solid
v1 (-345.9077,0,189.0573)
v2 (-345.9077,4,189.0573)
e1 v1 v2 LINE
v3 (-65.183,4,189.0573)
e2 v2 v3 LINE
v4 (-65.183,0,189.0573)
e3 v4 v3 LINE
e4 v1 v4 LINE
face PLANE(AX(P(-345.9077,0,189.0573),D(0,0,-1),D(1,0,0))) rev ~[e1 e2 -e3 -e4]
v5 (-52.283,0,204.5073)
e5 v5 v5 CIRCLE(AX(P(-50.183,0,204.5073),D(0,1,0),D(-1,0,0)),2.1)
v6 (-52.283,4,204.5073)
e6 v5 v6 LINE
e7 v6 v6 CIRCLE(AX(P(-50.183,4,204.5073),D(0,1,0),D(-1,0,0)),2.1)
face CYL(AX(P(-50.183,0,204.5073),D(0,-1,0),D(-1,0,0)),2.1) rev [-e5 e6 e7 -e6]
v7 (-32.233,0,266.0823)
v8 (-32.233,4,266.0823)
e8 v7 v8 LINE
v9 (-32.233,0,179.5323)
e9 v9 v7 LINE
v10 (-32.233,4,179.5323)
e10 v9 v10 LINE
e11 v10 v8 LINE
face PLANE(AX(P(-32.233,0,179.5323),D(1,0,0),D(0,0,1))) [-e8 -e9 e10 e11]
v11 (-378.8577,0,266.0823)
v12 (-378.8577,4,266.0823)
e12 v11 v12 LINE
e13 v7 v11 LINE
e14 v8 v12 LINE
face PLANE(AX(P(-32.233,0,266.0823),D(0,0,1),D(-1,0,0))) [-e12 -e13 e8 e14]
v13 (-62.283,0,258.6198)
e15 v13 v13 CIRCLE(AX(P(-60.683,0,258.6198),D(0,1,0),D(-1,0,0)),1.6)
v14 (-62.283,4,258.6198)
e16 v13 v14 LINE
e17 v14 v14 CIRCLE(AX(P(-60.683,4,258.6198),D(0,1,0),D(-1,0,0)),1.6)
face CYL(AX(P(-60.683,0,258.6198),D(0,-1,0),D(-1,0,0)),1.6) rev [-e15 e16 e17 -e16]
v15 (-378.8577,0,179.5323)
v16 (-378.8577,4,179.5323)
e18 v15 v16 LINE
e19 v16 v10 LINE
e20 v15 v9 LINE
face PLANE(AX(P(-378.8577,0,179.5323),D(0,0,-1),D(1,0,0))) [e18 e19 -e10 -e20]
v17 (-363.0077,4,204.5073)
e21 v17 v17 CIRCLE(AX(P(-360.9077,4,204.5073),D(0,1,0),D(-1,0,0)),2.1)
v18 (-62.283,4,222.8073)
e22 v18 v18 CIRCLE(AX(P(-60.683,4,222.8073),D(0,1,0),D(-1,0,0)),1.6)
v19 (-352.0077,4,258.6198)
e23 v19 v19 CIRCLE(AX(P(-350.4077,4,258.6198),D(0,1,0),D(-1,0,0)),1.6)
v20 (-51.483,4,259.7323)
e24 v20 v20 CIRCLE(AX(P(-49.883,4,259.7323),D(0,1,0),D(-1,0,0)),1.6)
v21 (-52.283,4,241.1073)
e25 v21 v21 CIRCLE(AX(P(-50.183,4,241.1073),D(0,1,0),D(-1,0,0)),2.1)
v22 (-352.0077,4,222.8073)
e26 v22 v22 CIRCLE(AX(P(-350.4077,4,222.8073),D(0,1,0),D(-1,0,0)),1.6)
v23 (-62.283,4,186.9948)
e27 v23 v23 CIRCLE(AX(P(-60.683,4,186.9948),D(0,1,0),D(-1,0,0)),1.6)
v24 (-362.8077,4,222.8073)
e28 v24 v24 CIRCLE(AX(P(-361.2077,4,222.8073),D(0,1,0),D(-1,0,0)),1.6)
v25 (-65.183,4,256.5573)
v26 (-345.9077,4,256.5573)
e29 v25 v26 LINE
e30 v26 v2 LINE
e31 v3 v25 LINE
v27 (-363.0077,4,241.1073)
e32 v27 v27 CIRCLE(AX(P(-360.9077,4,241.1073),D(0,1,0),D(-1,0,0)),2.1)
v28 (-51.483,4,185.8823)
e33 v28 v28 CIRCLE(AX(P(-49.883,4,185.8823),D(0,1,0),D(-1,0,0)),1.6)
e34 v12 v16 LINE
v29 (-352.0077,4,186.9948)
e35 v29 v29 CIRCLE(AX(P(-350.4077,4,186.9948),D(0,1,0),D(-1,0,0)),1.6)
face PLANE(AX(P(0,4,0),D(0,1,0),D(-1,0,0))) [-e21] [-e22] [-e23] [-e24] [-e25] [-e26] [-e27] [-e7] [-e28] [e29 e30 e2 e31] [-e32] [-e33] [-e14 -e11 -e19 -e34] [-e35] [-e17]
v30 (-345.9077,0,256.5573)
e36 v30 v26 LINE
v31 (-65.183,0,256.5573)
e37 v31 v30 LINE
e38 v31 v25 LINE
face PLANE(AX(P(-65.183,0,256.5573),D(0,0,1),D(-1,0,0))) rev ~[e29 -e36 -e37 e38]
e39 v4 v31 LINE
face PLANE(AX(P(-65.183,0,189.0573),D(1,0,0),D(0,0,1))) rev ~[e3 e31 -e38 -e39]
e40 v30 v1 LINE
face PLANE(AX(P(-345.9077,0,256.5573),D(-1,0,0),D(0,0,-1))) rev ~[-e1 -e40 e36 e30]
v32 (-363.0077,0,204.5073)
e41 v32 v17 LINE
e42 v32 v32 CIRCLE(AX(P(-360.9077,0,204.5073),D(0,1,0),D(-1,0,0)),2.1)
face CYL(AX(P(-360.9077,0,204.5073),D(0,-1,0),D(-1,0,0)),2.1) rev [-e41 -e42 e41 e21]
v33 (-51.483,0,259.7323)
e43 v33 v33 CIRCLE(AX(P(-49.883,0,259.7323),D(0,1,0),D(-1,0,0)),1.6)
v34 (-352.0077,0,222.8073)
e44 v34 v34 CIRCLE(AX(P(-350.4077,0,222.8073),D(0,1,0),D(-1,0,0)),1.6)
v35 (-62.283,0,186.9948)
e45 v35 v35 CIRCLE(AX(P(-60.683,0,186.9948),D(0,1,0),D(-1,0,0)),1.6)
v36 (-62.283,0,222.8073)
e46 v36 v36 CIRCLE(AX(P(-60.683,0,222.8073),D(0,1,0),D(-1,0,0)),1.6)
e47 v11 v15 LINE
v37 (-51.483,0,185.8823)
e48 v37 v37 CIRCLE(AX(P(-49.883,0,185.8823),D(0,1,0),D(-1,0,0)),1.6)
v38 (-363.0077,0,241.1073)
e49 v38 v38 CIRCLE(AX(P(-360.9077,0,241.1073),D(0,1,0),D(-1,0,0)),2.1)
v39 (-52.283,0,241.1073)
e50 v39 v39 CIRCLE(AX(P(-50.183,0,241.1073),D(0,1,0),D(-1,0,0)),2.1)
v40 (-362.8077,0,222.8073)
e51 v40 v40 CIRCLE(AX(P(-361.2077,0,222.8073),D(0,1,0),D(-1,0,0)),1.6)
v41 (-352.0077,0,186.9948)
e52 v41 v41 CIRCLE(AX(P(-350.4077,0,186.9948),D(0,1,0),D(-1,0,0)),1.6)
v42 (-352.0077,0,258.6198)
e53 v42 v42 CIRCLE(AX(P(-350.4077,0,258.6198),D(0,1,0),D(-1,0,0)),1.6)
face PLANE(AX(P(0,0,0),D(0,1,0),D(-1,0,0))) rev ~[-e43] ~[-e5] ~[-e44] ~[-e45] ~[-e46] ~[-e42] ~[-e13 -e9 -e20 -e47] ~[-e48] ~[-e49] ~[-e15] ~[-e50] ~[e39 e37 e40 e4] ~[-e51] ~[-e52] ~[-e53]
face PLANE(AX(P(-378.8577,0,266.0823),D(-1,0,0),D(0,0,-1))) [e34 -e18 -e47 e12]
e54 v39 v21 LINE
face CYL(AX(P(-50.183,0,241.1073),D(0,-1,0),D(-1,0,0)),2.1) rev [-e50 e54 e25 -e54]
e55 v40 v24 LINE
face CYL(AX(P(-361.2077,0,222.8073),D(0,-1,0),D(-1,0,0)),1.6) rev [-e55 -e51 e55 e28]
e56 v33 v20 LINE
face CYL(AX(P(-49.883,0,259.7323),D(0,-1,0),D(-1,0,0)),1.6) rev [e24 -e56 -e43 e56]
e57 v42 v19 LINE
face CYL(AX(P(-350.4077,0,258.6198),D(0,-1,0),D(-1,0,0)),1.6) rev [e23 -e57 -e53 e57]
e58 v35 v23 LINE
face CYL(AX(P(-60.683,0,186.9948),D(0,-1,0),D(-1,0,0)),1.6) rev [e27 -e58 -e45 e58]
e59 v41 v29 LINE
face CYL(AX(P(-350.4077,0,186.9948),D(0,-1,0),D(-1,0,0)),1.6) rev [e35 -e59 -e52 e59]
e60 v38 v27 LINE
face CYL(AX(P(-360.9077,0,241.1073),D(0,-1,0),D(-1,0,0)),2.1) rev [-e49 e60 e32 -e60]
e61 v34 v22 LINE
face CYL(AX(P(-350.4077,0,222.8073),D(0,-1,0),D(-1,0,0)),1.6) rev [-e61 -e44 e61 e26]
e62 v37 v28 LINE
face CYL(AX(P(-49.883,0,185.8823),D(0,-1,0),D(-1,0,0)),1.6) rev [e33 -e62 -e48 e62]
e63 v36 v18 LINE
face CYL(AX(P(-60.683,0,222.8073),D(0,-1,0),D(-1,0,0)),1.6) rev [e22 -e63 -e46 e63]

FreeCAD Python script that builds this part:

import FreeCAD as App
import Part
import Sketcher

V = App.Vector
Q = App.Units.Quantity

doc = App.newDocument("Part")
body = doc.addObject("PartDesign::Body", "Body")

# Sketch on XZ plane
sketch1 = body.newObject("Sketcher::SketchObject", "Sketch")
sketch1.AttachmentSupport = (doc.getObject("XZ_Plane"), [""])
sketch1.MapMode = "FlatFace"
sketch1.addGeometry([
    Part.LineSegment(V(-32.2, 179.5, 0), V(-378.9, 179.5, 0)),  # 0
    Part.LineSegment(V(-378.9, 179.5, 0), V(-378.9, 266.1, 0)),  # 1
    Part.LineSegment(V(-378.9, 266.1, 0), V(-32.2, 266.1, 0)),  # 2
    Part.LineSegment(V(-32.2, 266.1, 0), V(-32.2, 179.5, 0)),  # 3
    Part.Circle(V(-49.9, 185.9, 0), V(0, 0, 1), 1.6),  # 4
    Part.Circle(V(-60.7, 187, 0), V(0, 0, 1), 1.6),  # 5
    Part.Circle(V(-50.2, 204.5, 0), V(0, 0, 1), 2.1),  # 6
    Part.Circle(V(-350.4, 187, 0), V(0, 0, 1), 1.6),  # 7
    Part.Circle(V(-360.9, 204.5, 0), V(0, 0, 1), 2.1),  # 8
    Part.Circle(V(-60.7, 222.8, 0), V(0, 0, 1), 1.6),  # 9
    Part.Circle(V(-50.2, 241.1, 0), V(0, 0, 1), 2.1),  # 10
    Part.Circle(V(-49.9, 259.7, 0), V(0, 0, 1), 1.6),  # 11
    Part.Circle(V(-60.7, 258.6, 0), V(0, 0, 1), 1.6),  # 12
    Part.LineSegment(V(-65.2, 256.6, 0), V(-345.9, 256.6, 0)),  # 13
    Part.LineSegment(V(-345.9, 256.6, 0), V(-345.9, 189.1, 0)),  # 14
    Part.LineSegment(V(-345.9, 189.1, 0), V(-65.2, 189.1, 0)),  # 15
    Part.LineSegment(V(-65.2, 189.1, 0), V(-65.2, 256.6, 0)),  # 16
    Part.Circle(V(-350.4, 222.8, 0), V(0, 0, 1), 1.6),  # 17
    Part.Circle(V(-361.2, 222.8, 0), V(0, 0, 1), 1.6),  # 18
    Part.Circle(V(-360.9, 241.1, 0), V(0, 0, 1), 2.1),  # 19
    Part.Circle(V(-350.4, 258.6, 0), V(0, 0, 1), 1.6),  # 20
], False)
sketch1.addConstraint([
    Sketcher.Constraint("Coincident", 0, 2, 1, 1),
    Sketcher.Constraint("Coincident", 1, 2, 2, 1),
    Sketcher.Constraint("Coincident", 2, 2, 3, 1),
    Sketcher.Constraint("Coincident", 3, 2, 0, 1),
    Sketcher.Constraint("Coincident", 13, 2, 14, 1),
    Sketcher.Constraint("Coincident", 14, 2, 15, 1),
    Sketcher.Constraint("Coincident", 15, 2, 16, 1),
    Sketcher.Constraint("Coincident", 16, 2, 13, 1),
    Sketcher.Constraint("Horizontal", 0),
    Sketcher.Constraint("Vertical", 1),
    Sketcher.Constraint("Horizontal", 2),
    Sketcher.Constraint("Vertical", 3),
    Sketcher.Constraint("Horizontal", 13),
    Sketcher.Constraint("Vertical", 14),
    Sketcher.Constraint("Horizontal", 15),
    Sketcher.Constraint("Vertical", 16),
    Sketcher.Constraint("Equal", 4, 5),
    Sketcher.Constraint("Equal", 5, 7),
    Sketcher.Constraint("Equal", 6, 8),
    Sketcher.Constraint("Equal", 7, 9),
    Sketcher.Constraint("Equal", 8, 10),
    Sketcher.Constraint("Equal", 9, 11),
    Sketcher.Constraint("Equal", 11, 12),
    Sketcher.Constraint("Equal", 12, 17),
    Sketcher.Constraint("Equal", 17, 18),
    Sketcher.Constraint("Equal", 10, 19),
    Sketcher.Constraint("Equal", 18, 20),
    Sketcher.Constraint("Horizontal", 5, 3, 7, 3),
    Sketcher.Constraint("Horizontal", 6, 3, 8, 3),
    Sketcher.Constraint("Horizontal", 9, 3, 17, 3),
    Sketcher.Constraint("Horizontal", 17, 3, 18, 3),
    Sketcher.Constraint("Horizontal", 10, 3, 19, 3),
    Sketcher.Constraint("Horizontal", 12, 3, 20, 3),
    Sketcher.Constraint("Vertical", 5, 3, 9, 3),
    Sketcher.Constraint("Vertical", 6, 3, 10, 3),
    Sketcher.Constraint("Vertical", 4, 3, 11, 3),
    Sketcher.Constraint("Vertical", 9, 3, 12, 3),
    Sketcher.Constraint("Vertical", 7, 3, 17, 3),
    Sketcher.Constraint("Vertical", 8, 3, 19, 3),
    Sketcher.Constraint("Vertical", 17, 3, 20, 3),
    Sketcher.Constraint("Diameter", 4, Q("3.2 mm")),
    Sketcher.Constraint("Diameter", 6, Q("4.2 mm")),
    Sketcher.Constraint("DistanceY", 14, 2, 14, 1, Q("67.5 mm")),
    Sketcher.Constraint("DistanceX", 19, 3, 13, 2, Q("15 mm")),
    Sketcher.Constraint("DistanceX", 15, 2, 6, 3, Q("15 mm")),
    Sketcher.Constraint("DistanceY", 1, 1, 1, 2, Q("86.55 mm")),
    Sketcher.Constraint("DistanceX", 5, 3, 4, 3, Q("10.8 mm")),
    Sketcher.Constraint("DistanceX", 6, 3, 4, 3, Q("0.3 mm")),
    Sketcher.Constraint("DistanceX", 8, 3, 7, 3, Q("10.5 mm")),
    Sketcher.Constraint("DistanceY", 6, 3, 9, 3, Q("18.3 mm")),
    Sketcher.Constraint("DistanceY", 9, 3, 10, 3, Q("18.3 mm")),
    Sketcher.Constraint("DistanceX", 18, 3, 17, 3, Q("10.8 mm")),
    Sketcher.Constraint("DistanceY", 4, 3, 11, 3, Q("73.85 mm")),
    Sketcher.Constraint("DistanceX", 0, 2, 7, 3, Q("28.45 mm")),
    Sketcher.Constraint("DistanceX", 11, 3, 2, 2, Q("17.65 mm")),
    Sketcher.Constraint("DistanceY", 11, 3, 2, 2, Q("6.35 mm")),
    Sketcher.Constraint("DistanceY", 19, 3, 13, 2, Q("15.45 mm")),
    Sketcher.Constraint("DistanceX", 0, 2, 0, 1, Q("346.6247 mm")),
    Sketcher.Constraint("DistanceX", 4, 3, -1, 1, Q("49.883 mm")),
    Sketcher.Constraint("DistanceY", 4, 3, 6, 3, Q("18.625 mm")),
    Sketcher.Constraint("DistanceY", 5, 3, 12, 3, Q("71.625 mm")),
    Sketcher.Constraint("DistanceY", -1, 1, 4, 3, Q("185.8823 mm")),
    Sketcher.Constraint("DistanceY", -1, 1, 5, 3, Q("186.9948 mm")),
])
pad1 = body.newObject("PartDesign::Pad", "Pad")
pad1.Profile = sketch1
pad1.Length = 4
pad1.Reversed = True

doc.recompute()
